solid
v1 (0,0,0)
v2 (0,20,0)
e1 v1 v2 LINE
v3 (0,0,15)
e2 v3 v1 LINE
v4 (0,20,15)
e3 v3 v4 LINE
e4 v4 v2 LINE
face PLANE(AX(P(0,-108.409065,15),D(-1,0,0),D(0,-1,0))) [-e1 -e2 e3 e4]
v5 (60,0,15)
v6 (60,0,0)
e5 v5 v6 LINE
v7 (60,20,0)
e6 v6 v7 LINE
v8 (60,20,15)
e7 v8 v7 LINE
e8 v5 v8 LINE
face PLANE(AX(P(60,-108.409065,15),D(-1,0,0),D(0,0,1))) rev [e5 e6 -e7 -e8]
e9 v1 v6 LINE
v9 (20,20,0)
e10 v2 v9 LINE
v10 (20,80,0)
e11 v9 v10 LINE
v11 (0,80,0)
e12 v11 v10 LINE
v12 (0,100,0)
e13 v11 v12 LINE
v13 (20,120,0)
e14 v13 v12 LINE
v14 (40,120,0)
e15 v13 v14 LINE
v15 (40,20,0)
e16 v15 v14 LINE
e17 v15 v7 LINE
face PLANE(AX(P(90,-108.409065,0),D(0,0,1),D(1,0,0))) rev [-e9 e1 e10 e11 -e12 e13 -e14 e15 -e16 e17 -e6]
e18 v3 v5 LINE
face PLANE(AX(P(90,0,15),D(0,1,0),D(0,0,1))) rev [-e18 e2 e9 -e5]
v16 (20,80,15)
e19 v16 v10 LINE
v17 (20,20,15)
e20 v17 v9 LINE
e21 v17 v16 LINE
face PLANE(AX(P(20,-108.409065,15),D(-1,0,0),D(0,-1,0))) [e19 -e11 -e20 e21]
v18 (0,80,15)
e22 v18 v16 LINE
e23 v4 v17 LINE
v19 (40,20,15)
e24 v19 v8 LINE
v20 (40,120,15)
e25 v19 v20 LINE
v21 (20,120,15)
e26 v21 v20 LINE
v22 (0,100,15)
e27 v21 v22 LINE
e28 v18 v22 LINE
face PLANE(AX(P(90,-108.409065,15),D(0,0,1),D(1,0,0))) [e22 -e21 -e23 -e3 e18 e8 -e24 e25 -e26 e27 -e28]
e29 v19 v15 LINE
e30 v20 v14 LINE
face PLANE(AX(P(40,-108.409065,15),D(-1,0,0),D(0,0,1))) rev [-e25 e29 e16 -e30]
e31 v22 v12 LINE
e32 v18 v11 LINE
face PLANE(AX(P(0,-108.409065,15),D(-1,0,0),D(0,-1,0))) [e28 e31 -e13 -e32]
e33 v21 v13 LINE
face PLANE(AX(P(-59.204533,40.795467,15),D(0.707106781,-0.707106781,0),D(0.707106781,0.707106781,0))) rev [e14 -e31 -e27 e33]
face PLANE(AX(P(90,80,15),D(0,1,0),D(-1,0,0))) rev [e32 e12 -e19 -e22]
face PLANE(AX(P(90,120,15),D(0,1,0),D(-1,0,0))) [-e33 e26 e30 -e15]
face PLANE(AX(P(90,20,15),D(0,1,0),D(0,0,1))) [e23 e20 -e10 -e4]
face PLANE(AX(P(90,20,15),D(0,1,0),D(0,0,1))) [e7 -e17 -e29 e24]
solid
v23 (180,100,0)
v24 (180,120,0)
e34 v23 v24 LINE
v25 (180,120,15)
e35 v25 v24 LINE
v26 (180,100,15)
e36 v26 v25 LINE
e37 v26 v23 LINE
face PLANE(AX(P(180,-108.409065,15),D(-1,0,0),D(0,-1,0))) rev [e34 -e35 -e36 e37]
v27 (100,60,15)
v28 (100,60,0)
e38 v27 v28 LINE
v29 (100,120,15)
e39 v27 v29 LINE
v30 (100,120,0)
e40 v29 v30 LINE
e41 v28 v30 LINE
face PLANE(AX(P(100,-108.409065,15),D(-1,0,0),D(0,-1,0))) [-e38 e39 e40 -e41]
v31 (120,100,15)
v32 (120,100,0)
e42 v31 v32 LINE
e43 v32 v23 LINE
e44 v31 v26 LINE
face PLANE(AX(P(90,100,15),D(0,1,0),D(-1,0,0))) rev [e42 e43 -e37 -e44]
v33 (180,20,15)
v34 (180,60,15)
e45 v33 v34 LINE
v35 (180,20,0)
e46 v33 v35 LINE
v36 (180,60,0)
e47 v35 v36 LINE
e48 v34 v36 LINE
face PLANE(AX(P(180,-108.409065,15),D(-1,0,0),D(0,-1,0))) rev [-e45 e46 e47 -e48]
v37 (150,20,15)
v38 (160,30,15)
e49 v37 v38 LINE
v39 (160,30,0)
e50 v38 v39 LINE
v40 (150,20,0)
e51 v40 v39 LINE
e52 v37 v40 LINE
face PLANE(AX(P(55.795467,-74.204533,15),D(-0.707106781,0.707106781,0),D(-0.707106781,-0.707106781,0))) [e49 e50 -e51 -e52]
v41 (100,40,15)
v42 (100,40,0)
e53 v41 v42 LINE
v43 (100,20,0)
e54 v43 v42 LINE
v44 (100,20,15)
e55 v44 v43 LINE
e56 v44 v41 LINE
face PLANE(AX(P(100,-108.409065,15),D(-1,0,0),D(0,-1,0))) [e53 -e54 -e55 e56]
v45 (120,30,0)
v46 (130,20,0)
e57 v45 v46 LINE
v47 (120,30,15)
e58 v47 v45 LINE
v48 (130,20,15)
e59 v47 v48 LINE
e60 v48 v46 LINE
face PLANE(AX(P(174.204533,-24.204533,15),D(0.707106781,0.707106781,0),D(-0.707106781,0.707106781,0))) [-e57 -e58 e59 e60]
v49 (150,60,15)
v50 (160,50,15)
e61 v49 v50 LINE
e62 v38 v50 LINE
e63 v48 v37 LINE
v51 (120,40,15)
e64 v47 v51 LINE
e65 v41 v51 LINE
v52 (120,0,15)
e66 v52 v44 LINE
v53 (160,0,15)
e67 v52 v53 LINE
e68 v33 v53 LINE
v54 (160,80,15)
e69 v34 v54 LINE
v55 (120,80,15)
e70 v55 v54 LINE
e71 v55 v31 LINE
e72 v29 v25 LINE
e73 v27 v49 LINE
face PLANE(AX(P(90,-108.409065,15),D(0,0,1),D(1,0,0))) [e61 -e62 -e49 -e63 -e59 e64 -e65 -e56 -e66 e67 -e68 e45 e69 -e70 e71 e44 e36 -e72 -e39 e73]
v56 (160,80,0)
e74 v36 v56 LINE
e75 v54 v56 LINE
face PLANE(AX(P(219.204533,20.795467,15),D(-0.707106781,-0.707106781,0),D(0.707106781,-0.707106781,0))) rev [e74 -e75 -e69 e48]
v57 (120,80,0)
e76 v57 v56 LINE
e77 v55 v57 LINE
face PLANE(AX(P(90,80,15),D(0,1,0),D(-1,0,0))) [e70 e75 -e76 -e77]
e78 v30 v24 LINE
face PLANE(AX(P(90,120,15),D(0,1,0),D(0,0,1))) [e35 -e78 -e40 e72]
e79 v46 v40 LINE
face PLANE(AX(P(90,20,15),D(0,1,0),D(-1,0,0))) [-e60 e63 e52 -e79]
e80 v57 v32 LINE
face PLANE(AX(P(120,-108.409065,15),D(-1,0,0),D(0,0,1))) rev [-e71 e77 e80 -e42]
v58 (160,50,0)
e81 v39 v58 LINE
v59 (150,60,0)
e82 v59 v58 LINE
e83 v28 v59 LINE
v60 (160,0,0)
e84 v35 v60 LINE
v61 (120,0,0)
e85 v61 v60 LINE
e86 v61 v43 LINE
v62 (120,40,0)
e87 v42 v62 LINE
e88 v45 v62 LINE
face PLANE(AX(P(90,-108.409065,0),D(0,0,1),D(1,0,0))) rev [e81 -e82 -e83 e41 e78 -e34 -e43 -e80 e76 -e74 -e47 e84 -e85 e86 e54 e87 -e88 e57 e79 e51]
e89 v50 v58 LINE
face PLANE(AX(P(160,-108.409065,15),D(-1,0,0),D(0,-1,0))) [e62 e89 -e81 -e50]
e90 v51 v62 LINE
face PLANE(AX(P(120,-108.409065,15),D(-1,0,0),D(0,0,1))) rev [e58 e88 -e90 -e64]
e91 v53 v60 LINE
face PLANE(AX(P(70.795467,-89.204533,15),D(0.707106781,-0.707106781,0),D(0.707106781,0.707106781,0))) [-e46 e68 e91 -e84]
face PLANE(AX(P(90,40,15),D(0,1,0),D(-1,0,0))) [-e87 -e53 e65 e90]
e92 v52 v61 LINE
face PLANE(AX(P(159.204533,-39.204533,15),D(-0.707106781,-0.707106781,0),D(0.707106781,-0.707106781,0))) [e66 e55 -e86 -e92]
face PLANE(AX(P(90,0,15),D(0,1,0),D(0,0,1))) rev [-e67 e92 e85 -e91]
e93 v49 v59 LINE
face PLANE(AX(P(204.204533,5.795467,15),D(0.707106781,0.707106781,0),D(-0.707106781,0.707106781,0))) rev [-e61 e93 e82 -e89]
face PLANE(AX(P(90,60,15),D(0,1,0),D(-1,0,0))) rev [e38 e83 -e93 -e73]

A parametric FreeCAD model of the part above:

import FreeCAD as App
import Part
import Sketcher
from FreeCAD import Vector
Q = App.Units.Quantity


def add_polygon(sketch, points):
    """Adds a closed chain of lines whose ends are joined by coincident constraints."""
    first, n = sketch.GeometryCount, len(points)
    for a, b in zip(points, points[1:] + points[:1]):
        sketch.addGeometry(Part.LineSegment(App.Vector(*a, 0), App.Vector(*b, 0)), False)
    for i in range(n):
        sketch.addConstraint(Sketcher.Constraint("Coincident", first + i, 2, first + (i + 1) % n, 1))

doc = App.newDocument("Part")
params = doc.addObject("Spreadsheet::Sheet", "Params")
for row, (alias, value) in enumerate([
    ("sketch1_width", "20 mm"),
    ("sketch1_height", "100 mm"),
    ("pad1_length", "15 mm"),
    ("sketch2_width", "80 mm"),
    ("pad2_length", "15 mm"),
], start=1):
    params.set(f"A{row}", alias)
    params.set(f"B{row}", "=" + value)
    params.setAlias(f"B{row}", alias)

body = doc.addObject("PartDesign::Body", "Body")

sketch1 = doc.addObject("Sketcher::SketchObject", "Sketch")
body.addObject(sketch1)
sketch1.AttachmentSupport = (doc.XY_Plane, [""])
sketch1.MapMode = "FlatFace"
add_polygon(sketch1, [(40, 120), (20, 120), (0, 100), (0, 80), (20, 80), (20, 20), (0, 20), (0, 0), (60, 0), (60, 20), (40, 20)])
sketch1.addConstraint([
    Sketcher.Constraint("Horizontal", 0),
    Sketcher.Constraint("Vertical", 2),
    Sketcher.Constraint("Horizontal", 3),
    Sketcher.Constraint("Vertical", 4),
    Sketcher.Constraint("Horizontal", 5),
    Sketcher.Constraint("Vertical", 6),
    Sketcher.Constraint("Horizontal", 7),
    Sketcher.Constraint("Vertical", 8),
    Sketcher.Constraint("Horizontal", 9),
    Sketcher.Constraint("Vertical", 10),
    Sketcher.Constraint("Coincident", 6, 2, -1, 1),
    Sketcher.Constraint("PointOnObject", 1, 2, -2),
    Sketcher.Constraint("Horizontal", 5, 2, 8, 2),
    Sketcher.Constraint("Vertical", 0, 2, 3, 2),
    Sketcher.Constraint("Equal", 0, 3),
    Sketcher.Constraint("Equal", 5, 9),
    Sketcher.Constraint("Equal", 9, 2),
    Sketcher.Constraint("Equal", 7, 4),
    Sketcher.Constraint("Equal", 2, 6),
    Sketcher.Constraint("DistanceX", 0, 2, 0, 1, Q("20 mm")),
    Sketcher.Constraint("DistanceY", 10, 1, 10, 2, Q("100 mm")),
])
sketch1.setExpression("Constraints[30]", "Params.sketch1_width")
sketch1.setExpression("Constraints[31]", "Params.sketch1_height")
pad1 = doc.addObject("PartDesign::Pad", "Pad")
body.addObject(pad1)
pad1.Profile = sketch1
pad1.setExpression("Length", "Params.pad1_length")
body2 = doc.addObject("PartDesign::Body", "Body001")

sketch2 = doc.addObject("Sketcher::SketchObject", "Sketch001")
body2.addObject(sketch2)
sketch2.AttachmentSupport = (doc.getObject("XY_Plane001"), [""])
sketch2.MapMode = "FlatFace"
add_polygon(sketch2, [(180, 120), (100, 120), (100, 60), (150, 60), (160, 50), (160, 30), (150, 20), (130, 20), (120, 30), (120, 40), (100, 40), (100, 20), (120, 0), (160, 0), (180, 20), (180, 60), (160, 80), (120, 80), (120, 100), (180, 100)])
sketch2.addConstraint([
    Sketcher.Constraint("Horizontal", 0),
    Sketcher.Constraint("Vertical", 1),
    Sketcher.Constraint("Horizontal", 2),
    Sketcher.Constraint("Vertical", 4),
    Sketcher.Constraint("Horizontal", 6),
    Sketcher.Constraint("Vertical", 8),
    Sketcher.Constraint("Horizontal", 9),
    Sketcher.Constraint("Vertical", 10),
    Sketcher.Constraint("Horizontal", 12),
    Sketcher.Constraint("Vertical", 14),
    Sketcher.Constraint("Horizontal", 16),
    Sketcher.Constraint("Vertical", 17),
    Sketcher.Constraint("Horizontal", 18),
    Sketcher.Constraint("Vertical", 19),
    Sketcher.Constraint("PointOnObject", 11, 2, -1),
    Sketcher.Constraint("Perpendicular", 3, 5),
    Sketcher.Constraint("Perpendicular", 5, 7),
    Sketcher.Constraint("Parallel", 7, 11),
    Sketcher.Constraint("Perpendicular", 11, 13),
    Sketcher.Constraint("Perpendicular", 13, 15),
    Sketcher.Constraint("Horizontal", 4, 2, 7, 2),
    Sketcher.Constraint("Horizontal", 6, 2, 10, 2),
    Sketcher.Constraint("Horizontal", 10, 2, 13, 2),
    Sketcher.Constraint("Horizontal", 2, 2, 14, 2),
    Sketcher.Constraint("Vertical", 2, 2, 5, 2),
    Sketcher.Constraint("Vertical", 1, 2, 9, 2),
    Sketcher.Constraint("Vertical", 8, 2, 11, 2),
    Sketcher.Constraint("Vertical", 4, 2, 12, 2),
    Sketcher.Constraint("Vertical", 12, 2, 15, 2),
    Sketcher.Constraint("Vertical", 11, 2, 16, 2),
    Sketcher.Constraint("Vertical", 14, 2, 18, 2),
    Sketcher.Constraint("Equal", 6, 9),
    Sketcher.Constraint("Equal", 18, 1),
    Sketcher.Constraint("Equal", 9, 4),
    Sketcher.Constraint("Equal", 4, 10),
    Sketcher.Constraint("Equal", 16, 14),
    Sketcher.Constraint("Equal", 10, 17),
    Sketcher.Constraint("Equal", 17, 19),
    Sketcher.Constraint("DistanceX", 0, 2, 0, 1, Q("80 mm")),
    Sketcher.Constraint("DistanceX", -1, 1, 0, 2, Q("100 mm")),
])
sketch2.setExpression("Constraints[58]", "Params.sketch2_width")
pad2 = doc.addObject("PartDesign::Pad", "Pad001")
body2.addObject(pad2)
pad2.Profile = sketch2
pad2.setExpression("Length", "Params.pad2_length")

doc.recompute()
